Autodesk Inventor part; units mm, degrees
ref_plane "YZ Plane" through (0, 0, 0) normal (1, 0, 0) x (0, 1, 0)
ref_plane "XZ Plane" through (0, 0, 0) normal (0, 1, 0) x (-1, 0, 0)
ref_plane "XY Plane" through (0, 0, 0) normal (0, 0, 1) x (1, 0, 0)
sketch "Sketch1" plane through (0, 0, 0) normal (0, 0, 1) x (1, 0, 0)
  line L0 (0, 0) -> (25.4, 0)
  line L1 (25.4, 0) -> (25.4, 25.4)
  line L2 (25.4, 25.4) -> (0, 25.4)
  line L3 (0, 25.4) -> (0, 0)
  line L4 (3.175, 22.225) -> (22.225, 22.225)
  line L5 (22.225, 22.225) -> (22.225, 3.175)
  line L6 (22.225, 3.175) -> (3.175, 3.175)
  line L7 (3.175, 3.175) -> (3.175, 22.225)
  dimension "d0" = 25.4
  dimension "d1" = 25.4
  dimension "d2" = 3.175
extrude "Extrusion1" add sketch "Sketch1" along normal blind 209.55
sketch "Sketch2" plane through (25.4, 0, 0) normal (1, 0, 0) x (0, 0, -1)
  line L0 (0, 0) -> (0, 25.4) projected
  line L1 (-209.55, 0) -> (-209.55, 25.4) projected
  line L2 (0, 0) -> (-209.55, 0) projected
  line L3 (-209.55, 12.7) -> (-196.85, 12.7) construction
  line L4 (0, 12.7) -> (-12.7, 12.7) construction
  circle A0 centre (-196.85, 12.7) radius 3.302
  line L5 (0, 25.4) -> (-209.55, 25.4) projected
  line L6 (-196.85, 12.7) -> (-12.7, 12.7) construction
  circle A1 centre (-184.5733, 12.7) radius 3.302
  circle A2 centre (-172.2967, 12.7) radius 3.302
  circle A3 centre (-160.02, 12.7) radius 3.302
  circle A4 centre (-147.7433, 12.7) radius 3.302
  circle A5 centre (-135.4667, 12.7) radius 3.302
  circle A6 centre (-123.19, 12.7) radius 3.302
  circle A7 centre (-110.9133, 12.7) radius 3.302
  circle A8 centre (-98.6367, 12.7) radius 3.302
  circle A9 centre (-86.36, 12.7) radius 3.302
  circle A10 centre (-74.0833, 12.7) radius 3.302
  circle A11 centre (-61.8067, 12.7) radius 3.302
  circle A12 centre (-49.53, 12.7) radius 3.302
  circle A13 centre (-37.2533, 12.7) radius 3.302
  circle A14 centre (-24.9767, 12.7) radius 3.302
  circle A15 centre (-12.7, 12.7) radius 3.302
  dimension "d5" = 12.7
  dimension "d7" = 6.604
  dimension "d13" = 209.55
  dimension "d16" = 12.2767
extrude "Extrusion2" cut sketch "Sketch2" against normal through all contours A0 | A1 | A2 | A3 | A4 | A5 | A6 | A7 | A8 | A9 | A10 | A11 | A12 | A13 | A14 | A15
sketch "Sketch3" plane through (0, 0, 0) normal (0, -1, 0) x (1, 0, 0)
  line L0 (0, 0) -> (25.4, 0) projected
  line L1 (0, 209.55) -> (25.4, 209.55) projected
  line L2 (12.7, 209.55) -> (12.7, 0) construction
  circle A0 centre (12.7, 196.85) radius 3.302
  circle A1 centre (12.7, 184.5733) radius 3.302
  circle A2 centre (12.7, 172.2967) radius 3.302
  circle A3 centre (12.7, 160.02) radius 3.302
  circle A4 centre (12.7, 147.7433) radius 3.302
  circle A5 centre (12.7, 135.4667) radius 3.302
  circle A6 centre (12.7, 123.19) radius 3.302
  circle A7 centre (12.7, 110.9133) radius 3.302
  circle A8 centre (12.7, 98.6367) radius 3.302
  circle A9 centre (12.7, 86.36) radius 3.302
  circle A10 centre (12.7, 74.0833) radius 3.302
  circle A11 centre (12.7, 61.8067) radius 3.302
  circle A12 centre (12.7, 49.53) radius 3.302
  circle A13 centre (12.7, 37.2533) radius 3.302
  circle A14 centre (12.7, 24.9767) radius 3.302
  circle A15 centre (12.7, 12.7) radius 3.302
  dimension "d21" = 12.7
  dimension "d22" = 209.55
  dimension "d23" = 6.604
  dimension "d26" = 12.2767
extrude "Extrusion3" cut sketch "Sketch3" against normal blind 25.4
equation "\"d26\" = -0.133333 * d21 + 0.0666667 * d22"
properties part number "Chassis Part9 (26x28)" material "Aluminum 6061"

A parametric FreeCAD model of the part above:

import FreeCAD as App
import Part
import Sketcher

V = App.Vector
Q = App.Units.Quantity


def add_polygon(sketch, points):
    """Adds a closed chain of lines whose ends are joined by coincident constraints."""
    first, n = sketch.GeometryCount, len(points)
    for a, b in zip(points, points[1:] + points[:1]):
        sketch.addGeometry(Part.LineSegment(App.Vector(*a, 0), App.Vector(*b, 0)), False)
    for i in range(n):
        sketch.addConstraint(Sketcher.Constraint("Coincident", first + i, 2, first + (i + 1) % n, 1))

doc = App.newDocument("Part")
body = doc.addObject("PartDesign::Body", "Body")

# Sketch on XY plane
sketch1 = body.newObject("Sketcher::SketchObject", "Sketch")
sketch1.AttachmentSupport = (doc.getObject("XY_Plane"), [""])
sketch1.MapMode = "FlatFace"
add_polygon(sketch1, [(0, 25), (0, 0), (25, 0), (25, 25)])  # lines 0-3
add_polygon(sketch1, [(3, 3), (3, 22), (22, 22), (22, 3)])  # lines 4-7
sketch1.addConstraint(Sketcher.Constraint("Vertical", 0))
sketch1.addConstraint(Sketcher.Constraint("Horizontal", 1))
sketch1.addConstraint(Sketcher.Constraint("Vertical", 2))
sketch1.addConstraint(Sketcher.Constraint("Horizontal", 3))
sketch1.addConstraint(Sketcher.Constraint("Vertical", 4))
sketch1.addConstraint(Sketcher.Constraint("Horizontal", 5))
sketch1.addConstraint(Sketcher.Constraint("Vertical", 6))
sketch1.addConstraint(Sketcher.Constraint("Horizontal", 7))
sketch1.addConstraint(Sketcher.Constraint("Coincident", 0, 2, -1, 1))
sketch1.addConstraint(Sketcher.Constraint("Equal", 3, 0))
sketch1.addConstraint(Sketcher.Constraint("Equal", 7, 4))
sketch1.addConstraint(Sketcher.Constraint("DistanceX", 1, 1, 1, 2, Q("1 in")))
sketch1.addConstraint(Sketcher.Constraint("DistanceX", -1, 1, 4, 2, Q("0.125 in")))
sketch1.addConstraint(Sketcher.Constraint("DistanceY", -1, 1, 6, 2, Q("0.125 in")))
sketch1.addConstraint(Sketcher.Constraint("DistanceY", 4, 2, 3, 2, Q("0.125 in")))
pad1 = body.newObject("PartDesign::Pad", "Pad")
pad1.Profile = sketch1
pad1.Length = Q("8.25 in")

# Sketch on YZ plane
sketch2 = body.newObject("Sketcher::SketchObject", "Sketch001")
sketch2.AttachmentSupport = (doc.getObject("YZ_Plane"), [""])
sketch2.MapMode = "FlatFace"
sketch2.AttachmentOffset = App.Placement(V(0, 0, 1 * 25.4), App.Rotation())
sketch2.addGeometry(Part.Circle(V(12.7, 196.8, 0), V(0, 0, 1), 3.3), False)
sketch2.addGeometry(Part.Circle(V(12.7, 184.6, 0), V(0, 0, 1), 3.3), False)
sketch2.addGeometry(Part.Circle(V(12.7, 172.3, 0), V(0, 0, 1), 3.3), False)
sketch2.addGeometry(Part.Circle(V(12.7, 160, 0), V(0, 0, 1), 3.3), False)
sketch2.addGeometry(Part.Circle(V(12.7, 147.7, 0), V(0, 0, 1), 3.3), False)
sketch2.addGeometry(Part.Circle(V(12.7, 135.5, 0), V(0, 0, 1), 3.3), False)
sketch2.addGeometry(Part.Circle(V(12.7, 123.2, 0), V(0, 0, 1), 3.3), False)
sketch2.addGeometry(Part.Circle(V(12.7, 110.9, 0), V(0, 0, 1), 3.3), False)
sketch2.addGeometry(Part.Circle(V(12.7, 98.6, 0), V(0, 0, 1), 3.3), False)
sketch2.addGeometry(Part.Circle(V(12.7, 86.4, 0), V(0, 0, 1), 3.3), False)
sketch2.addGeometry(Part.Circle(V(12.7, 74.1, 0), V(0, 0, 1), 3.3), False)
sketch2.addGeometry(Part.Circle(V(12.7, 61.8, 0), V(0, 0, 1), 3.3), False)
sketch2.addGeometry(Part.Circle(V(12.7, 49.5, 0), V(0, 0, 1), 3.3), False)
sketch2.addGeometry(Part.Circle(V(12.7, 37.3, 0), V(0, 0, 1), 3.3), False)
sketch2.addGeometry(Part.Circle(V(12.7, 25, 0), V(0, 0, 1), 3.3), False)
sketch2.addGeometry(Part.Circle(V(12.7, 12.7, 0), V(0, 0, 1), 3.3), False)
sketch2.addConstraint(Sketcher.Constraint("Equal", 0, 1))
sketch2.addConstraint(Sketcher.Constraint("Equal", 1, 2))
sketch2.addConstraint(Sketcher.Constraint("Equal", 2, 3))
sketch2.addConstraint(Sketcher.Constraint("Equal", 3, 4))
sketch2.addConstraint(Sketcher.Constraint("Equal", 4, 5))
sketch2.addConstraint(Sketcher.Constraint("Equal", 5, 6))
sketch2.addConstraint(Sketcher.Constraint("Equal", 6, 7))
sketch2.addConstraint(Sketcher.Constraint("Equal", 7, 8))
sketch2.addConstraint(Sketcher.Constraint("Equal", 8, 9))
sketch2.addConstraint(Sketcher.Constraint("Equal", 9, 10))
sketch2.addConstraint(Sketcher.Constraint("Equal", 10, 11))
sketch2.addConstraint(Sketcher.Constraint("Equal", 11, 12))
sketch2.addConstraint(Sketcher.Constraint("Equal", 12, 13))
sketch2.addConstraint(Sketcher.Constraint("Equal", 13, 14))
sketch2.addConstraint(Sketcher.Constraint("Equal", 14, 15))
sketch2.addConstraint(Sketcher.Constraint("Vertical", 0, 3, 1, 3))
sketch2.addConstraint(Sketcher.Constraint("Vertical", 1, 3, 2, 3))
sketch2.addConstraint(Sketcher.Constraint("Vertical", 2, 3, 3, 3))
sketch2.addConstraint(Sketcher.Constraint("Vertical", 3, 3, 4, 3))
sketch2.addConstraint(Sketcher.Constraint("Vertical", 4, 3, 5, 3))
sketch2.addConstraint(Sketcher.Constraint("Vertical", 5, 3, 6, 3))
sketch2.addConstraint(Sketcher.Constraint("Vertical", 6, 3, 7, 3))
sketch2.addConstraint(Sketcher.Constraint("Vertical", 7, 3, 8, 3))
sketch2.addConstraint(Sketcher.Constraint("Vertical", 8, 3, 9, 3))
sketch2.addConstraint(Sketcher.Constraint("Vertical", 9, 3, 10, 3))
sketch2.addConstraint(Sketcher.Constraint("Vertical", 10, 3, 11, 3))
sketch2.addConstraint(Sketcher.Constraint("Vertical", 11, 3, 12, 3))
sketch2.addConstraint(Sketcher.Constraint("Vertical", 12, 3, 13, 3))
sketch2.addConstraint(Sketcher.Constraint("Vertical", 13, 3, 14, 3))
sketch2.addConstraint(Sketcher.Constraint("Vertical", 14, 3, 15, 3))
sketch2.addConstraint(Sketcher.Constraint("Diameter", 0, Q("0.26 in")))
sketch2.addConstraint(Sketcher.Constraint("DistanceX", -1, 1, 0, 3, Q("0.5 in")))
sketch2.addConstraint(Sketcher.Constraint("DistanceY", -1, 1, 15, 3, Q("0.5 in")))
sketch2.addConstraint(Sketcher.Constraint("DistanceY", -1, 1, 3, 3, Q("6.3 in")))
sketch2.addConstraint(Sketcher.Constraint("DistanceY", -1, 1, 9, 3, Q("3.4 in")))
sketch2.addConstraint(Sketcher.Constraint("DistanceY", -1, 1, 0, 3, Q("7.75 in")))
sketch2.addConstraint(Sketcher.Constraint("DistanceY", -1, 1, 6, 3, Q("4.85 in")))
sketch2.addConstraint(Sketcher.Constraint("DistanceY", -1, 1, 12, 3, Q("1.95 in")))
sketch2.addConstraint(Sketcher.Constraint("DistanceY", 1, 3, 0, 3, Q("12.2767 mm")))
sketch2.addConstraint(Sketcher.Constraint("DistanceY", 2, 3, 1, 3, Q("12.2766 mm")))
sketch2.addConstraint(Sketcher.Constraint("DistanceY", 4, 3, 3, 3, Q("12.2767 mm")))
sketch2.addConstraint(Sketcher.Constraint("DistanceY", 5, 3, 4, 3, Q("12.2766 mm")))
sketch2.addConstraint(Sketcher.Constraint("DistanceY", 7, 3, 6, 3, Q("12.2767 mm")))
sketch2.addConstraint(Sketcher.Constraint("DistanceY", 8, 3, 7, 3, Q("12.2766 mm")))
sketch2.addConstraint(Sketcher.Constraint("DistanceY", 10, 3, 9, 3, Q("12.2767 mm")))
sketch2.addConstraint(Sketcher.Constraint("DistanceY", 11, 3, 10, 3, Q("12.2766 mm")))
sketch2.addConstraint(Sketcher.Constraint("DistanceY", 13, 3, 12, 3, Q("12.2767 mm")))
sketch2.addConstraint(Sketcher.Constraint("DistanceY", 14, 3, 13, 3, Q("12.2766 mm")))
pocket1 = body.newObject("PartDesign::Pocket", "Pocket")
pocket1.Profile = sketch2
pocket1.Type = "ThroughAll"

# Sketch on XZ plane
sketch3 = body.newObject("Sketcher::SketchObject", "Sketch002")
sketch3.AttachmentSupport = (doc.getObject("XZ_Plane"), [""])
sketch3.MapMode = "FlatFace"
sketch3.addGeometry(Part.Circle(V(12.7, 196.8, 0), V(0, 0, 1), 3.3), False)
sketch3.addGeometry(Part.Circle(V(12.7, 184.6, 0), V(0, 0, 1), 3.3), False)
sketch3.addGeometry(Part.Circle(V(12.7, 172.3, 0), V(0, 0, 1), 3.3), False)
sketch3.addGeometry(Part.Circle(V(12.7, 160, 0), V(0, 0, 1), 3.3), False)
sketch3.addGeometry(Part.Circle(V(12.7, 147.7, 0), V(0, 0, 1), 3.3), False)
sketch3.addGeometry(Part.Circle(V(12.7, 135.5, 0), V(0, 0, 1), 3.3), False)
sketch3.addGeometry(Part.Circle(V(12.7, 123.2, 0), V(0, 0, 1), 3.3), False)
sketch3.addGeometry(Part.Circle(V(12.7, 110.9, 0), V(0, 0, 1), 3.3), False)
sketch3.addGeometry(Part.Circle(V(12.7, 98.6, 0), V(0, 0, 1), 3.3), False)
sketch3.addGeometry(Part.Circle(V(12.7, 86.4, 0), V(0, 0, 1), 3.3), False)
sketch3.addGeometry(Part.Circle(V(12.7, 74.1, 0), V(0, 0, 1), 3.3), False)
sketch3.addGeometry(Part.Circle(V(12.7, 61.8, 0), V(0, 0, 1), 3.3), False)
sketch3.addGeometry(Part.Circle(V(12.7, 49.5, 0), V(0, 0, 1), 3.3), False)
sketch3.addGeometry(Part.Circle(V(12.7, 37.3, 0), V(0, 0, 1), 3.3), False)
sketch3.addGeometry(Part.Circle(V(12.7, 25, 0), V(0, 0, 1), 3.3), False)
sketch3.addGeometry(Part.Circle(V(12.7, 12.7, 0), V(0, 0, 1), 3.3), False)
sketch3.addConstraint(Sketcher.Constraint("Equal", 0, 1))
sketch3.addConstraint(Sketcher.Constraint("Equal", 1, 2))
sketch3.addConstraint(Sketcher.Constraint("Equal", 2, 3))
sketch3.addConstraint(Sketcher.Constraint("Equal", 3, 4))
sketch3.addConstraint(Sketcher.Constraint("Equal", 4, 5))
sketch3.addConstraint(Sketcher.Constraint("Equal", 5, 6))
sketch3.addConstraint(Sketcher.Constraint("Equal", 6, 7))
sketch3.addConstraint(Sketcher.Constraint("Equal", 7, 8))
sketch3.addConstraint(Sketcher.Constraint("Equal", 8, 9))
sketch3.addConstraint(Sketcher.Constraint("Equal", 9, 10))
sketch3.addConstraint(Sketcher.Constraint("Equal", 10, 11))
sketch3.addConstraint(Sketcher.Constraint("Equal", 11, 12))
sketch3.addConstraint(Sketcher.Constraint("Equal", 12, 13))
sketch3.addConstraint(Sketcher.Constraint("Equal", 13, 14))
sketch3.addConstraint(Sketcher.Constraint("Equal", 14, 15))
sketch3.addConstraint(Sketcher.Constraint("Vertical", 0, 3, 1, 3))
sketch3.addConstraint(Sketcher.Constraint("Vertical", 1, 3, 2, 3))
sketch3.addConstraint(Sketcher.Constraint("Vertical", 2, 3, 3, 3))
sketch3.addConstraint(Sketcher.Constraint("Vertical", 3, 3, 4, 3))
sketch3.addConstraint(Sketcher.Constraint("Vertical", 4, 3, 5, 3))
sketch3.addConstraint(Sketcher.Constraint("Vertical", 5, 3, 6, 3))
sketch3.addConstraint(Sketcher.Constraint("Vertical", 6, 3, 7, 3))
sketch3.addConstraint(Sketcher.Constraint("Vertical", 7, 3, 8, 3))
sketch3.addConstraint(Sketcher.Constraint("Vertical", 8, 3, 9, 3))
sketch3.addConstraint(Sketcher.Constraint("Vertical", 9, 3, 10, 3))
sketch3.addConstraint(Sketcher.Constraint("Vertical", 10, 3, 11, 3))
sketch3.addConstraint(Sketcher.Constraint("Vertical", 11, 3, 12, 3))
sketch3.addConstraint(Sketcher.Constraint("Vertical", 12, 3, 13, 3))
sketch3.addConstraint(Sketcher.Constraint("Vertical", 13, 3, 14, 3))
sketch3.addConstraint(Sketcher.Constraint("Vertical", 14, 3, 15, 3))
sketch3.addConstraint(Sketcher.Constraint("Diameter", 0, Q("0.26 in")))
sketch3.addConstraint(Sketcher.Constraint("DistanceX", -1, 1, 0, 3, Q("0.5 in")))
sketch3.addConstraint(Sketcher.Constraint("DistanceY", -1, 1, 15, 3, Q("0.5 in")))
sketch3.addConstraint(Sketcher.Constraint("DistanceY", -1, 1, 3, 3, Q("6.3 in")))
sketch3.addConstraint(Sketcher.Constraint("DistanceY", -1, 1, 9, 3, Q("3.4 in")))
sketch3.addConstraint(Sketcher.Constraint("DistanceY", -1, 1, 0, 3, Q("7.75 in")))
sketch3.addConstraint(Sketcher.Constraint("DistanceY", -1, 1, 6, 3, Q("4.85 in")))
sketch3.addConstraint(Sketcher.Constraint("DistanceY", -1, 1, 12, 3, Q("1.95 in")))
sketch3.addConstraint(Sketcher.Constraint("DistanceY", 1, 3, 0, 3, Q("12.2767 mm")))
sketch3.addConstraint(Sketcher.Constraint("DistanceY", 2, 3, 1, 3, Q("12.2766 mm")))
sketch3.addConstraint(Sketcher.Constraint("DistanceY", 4, 3, 3, 3, Q("12.2767 mm")))
sketch3.addConstraint(Sketcher.Constraint("DistanceY", 5, 3, 4, 3, Q("12.2766 mm")))
sketch3.addConstraint(Sketcher.Constraint("DistanceY", 7, 3, 6, 3, Q("12.2767 mm")))
sketch3.addConstraint(Sketcher.Constraint("DistanceY", 8, 3, 7, 3, Q("12.2766 mm")))
sketch3.addConstraint(Sketcher.Constraint("DistanceY", 10, 3, 9, 3, Q("12.2767 mm")))
sketch3.addConstraint(Sketcher.Constraint("DistanceY", 11, 3, 10, 3, Q("12.2766 mm")))
sketch3.addConstraint(Sketcher.Constraint("DistanceY", 13, 3, 12, 3, Q("12.2767 mm")))
sketch3.addConstraint(Sketcher.Constraint("DistanceY", 14, 3, 13, 3, Q("12.2766 mm")))
pocket2 = body.newObject("PartDesign::Pocket", "Pocket001")
pocket2.Profile = sketch3
pocket2.Length = Q("1 in")

doc.recompute()
